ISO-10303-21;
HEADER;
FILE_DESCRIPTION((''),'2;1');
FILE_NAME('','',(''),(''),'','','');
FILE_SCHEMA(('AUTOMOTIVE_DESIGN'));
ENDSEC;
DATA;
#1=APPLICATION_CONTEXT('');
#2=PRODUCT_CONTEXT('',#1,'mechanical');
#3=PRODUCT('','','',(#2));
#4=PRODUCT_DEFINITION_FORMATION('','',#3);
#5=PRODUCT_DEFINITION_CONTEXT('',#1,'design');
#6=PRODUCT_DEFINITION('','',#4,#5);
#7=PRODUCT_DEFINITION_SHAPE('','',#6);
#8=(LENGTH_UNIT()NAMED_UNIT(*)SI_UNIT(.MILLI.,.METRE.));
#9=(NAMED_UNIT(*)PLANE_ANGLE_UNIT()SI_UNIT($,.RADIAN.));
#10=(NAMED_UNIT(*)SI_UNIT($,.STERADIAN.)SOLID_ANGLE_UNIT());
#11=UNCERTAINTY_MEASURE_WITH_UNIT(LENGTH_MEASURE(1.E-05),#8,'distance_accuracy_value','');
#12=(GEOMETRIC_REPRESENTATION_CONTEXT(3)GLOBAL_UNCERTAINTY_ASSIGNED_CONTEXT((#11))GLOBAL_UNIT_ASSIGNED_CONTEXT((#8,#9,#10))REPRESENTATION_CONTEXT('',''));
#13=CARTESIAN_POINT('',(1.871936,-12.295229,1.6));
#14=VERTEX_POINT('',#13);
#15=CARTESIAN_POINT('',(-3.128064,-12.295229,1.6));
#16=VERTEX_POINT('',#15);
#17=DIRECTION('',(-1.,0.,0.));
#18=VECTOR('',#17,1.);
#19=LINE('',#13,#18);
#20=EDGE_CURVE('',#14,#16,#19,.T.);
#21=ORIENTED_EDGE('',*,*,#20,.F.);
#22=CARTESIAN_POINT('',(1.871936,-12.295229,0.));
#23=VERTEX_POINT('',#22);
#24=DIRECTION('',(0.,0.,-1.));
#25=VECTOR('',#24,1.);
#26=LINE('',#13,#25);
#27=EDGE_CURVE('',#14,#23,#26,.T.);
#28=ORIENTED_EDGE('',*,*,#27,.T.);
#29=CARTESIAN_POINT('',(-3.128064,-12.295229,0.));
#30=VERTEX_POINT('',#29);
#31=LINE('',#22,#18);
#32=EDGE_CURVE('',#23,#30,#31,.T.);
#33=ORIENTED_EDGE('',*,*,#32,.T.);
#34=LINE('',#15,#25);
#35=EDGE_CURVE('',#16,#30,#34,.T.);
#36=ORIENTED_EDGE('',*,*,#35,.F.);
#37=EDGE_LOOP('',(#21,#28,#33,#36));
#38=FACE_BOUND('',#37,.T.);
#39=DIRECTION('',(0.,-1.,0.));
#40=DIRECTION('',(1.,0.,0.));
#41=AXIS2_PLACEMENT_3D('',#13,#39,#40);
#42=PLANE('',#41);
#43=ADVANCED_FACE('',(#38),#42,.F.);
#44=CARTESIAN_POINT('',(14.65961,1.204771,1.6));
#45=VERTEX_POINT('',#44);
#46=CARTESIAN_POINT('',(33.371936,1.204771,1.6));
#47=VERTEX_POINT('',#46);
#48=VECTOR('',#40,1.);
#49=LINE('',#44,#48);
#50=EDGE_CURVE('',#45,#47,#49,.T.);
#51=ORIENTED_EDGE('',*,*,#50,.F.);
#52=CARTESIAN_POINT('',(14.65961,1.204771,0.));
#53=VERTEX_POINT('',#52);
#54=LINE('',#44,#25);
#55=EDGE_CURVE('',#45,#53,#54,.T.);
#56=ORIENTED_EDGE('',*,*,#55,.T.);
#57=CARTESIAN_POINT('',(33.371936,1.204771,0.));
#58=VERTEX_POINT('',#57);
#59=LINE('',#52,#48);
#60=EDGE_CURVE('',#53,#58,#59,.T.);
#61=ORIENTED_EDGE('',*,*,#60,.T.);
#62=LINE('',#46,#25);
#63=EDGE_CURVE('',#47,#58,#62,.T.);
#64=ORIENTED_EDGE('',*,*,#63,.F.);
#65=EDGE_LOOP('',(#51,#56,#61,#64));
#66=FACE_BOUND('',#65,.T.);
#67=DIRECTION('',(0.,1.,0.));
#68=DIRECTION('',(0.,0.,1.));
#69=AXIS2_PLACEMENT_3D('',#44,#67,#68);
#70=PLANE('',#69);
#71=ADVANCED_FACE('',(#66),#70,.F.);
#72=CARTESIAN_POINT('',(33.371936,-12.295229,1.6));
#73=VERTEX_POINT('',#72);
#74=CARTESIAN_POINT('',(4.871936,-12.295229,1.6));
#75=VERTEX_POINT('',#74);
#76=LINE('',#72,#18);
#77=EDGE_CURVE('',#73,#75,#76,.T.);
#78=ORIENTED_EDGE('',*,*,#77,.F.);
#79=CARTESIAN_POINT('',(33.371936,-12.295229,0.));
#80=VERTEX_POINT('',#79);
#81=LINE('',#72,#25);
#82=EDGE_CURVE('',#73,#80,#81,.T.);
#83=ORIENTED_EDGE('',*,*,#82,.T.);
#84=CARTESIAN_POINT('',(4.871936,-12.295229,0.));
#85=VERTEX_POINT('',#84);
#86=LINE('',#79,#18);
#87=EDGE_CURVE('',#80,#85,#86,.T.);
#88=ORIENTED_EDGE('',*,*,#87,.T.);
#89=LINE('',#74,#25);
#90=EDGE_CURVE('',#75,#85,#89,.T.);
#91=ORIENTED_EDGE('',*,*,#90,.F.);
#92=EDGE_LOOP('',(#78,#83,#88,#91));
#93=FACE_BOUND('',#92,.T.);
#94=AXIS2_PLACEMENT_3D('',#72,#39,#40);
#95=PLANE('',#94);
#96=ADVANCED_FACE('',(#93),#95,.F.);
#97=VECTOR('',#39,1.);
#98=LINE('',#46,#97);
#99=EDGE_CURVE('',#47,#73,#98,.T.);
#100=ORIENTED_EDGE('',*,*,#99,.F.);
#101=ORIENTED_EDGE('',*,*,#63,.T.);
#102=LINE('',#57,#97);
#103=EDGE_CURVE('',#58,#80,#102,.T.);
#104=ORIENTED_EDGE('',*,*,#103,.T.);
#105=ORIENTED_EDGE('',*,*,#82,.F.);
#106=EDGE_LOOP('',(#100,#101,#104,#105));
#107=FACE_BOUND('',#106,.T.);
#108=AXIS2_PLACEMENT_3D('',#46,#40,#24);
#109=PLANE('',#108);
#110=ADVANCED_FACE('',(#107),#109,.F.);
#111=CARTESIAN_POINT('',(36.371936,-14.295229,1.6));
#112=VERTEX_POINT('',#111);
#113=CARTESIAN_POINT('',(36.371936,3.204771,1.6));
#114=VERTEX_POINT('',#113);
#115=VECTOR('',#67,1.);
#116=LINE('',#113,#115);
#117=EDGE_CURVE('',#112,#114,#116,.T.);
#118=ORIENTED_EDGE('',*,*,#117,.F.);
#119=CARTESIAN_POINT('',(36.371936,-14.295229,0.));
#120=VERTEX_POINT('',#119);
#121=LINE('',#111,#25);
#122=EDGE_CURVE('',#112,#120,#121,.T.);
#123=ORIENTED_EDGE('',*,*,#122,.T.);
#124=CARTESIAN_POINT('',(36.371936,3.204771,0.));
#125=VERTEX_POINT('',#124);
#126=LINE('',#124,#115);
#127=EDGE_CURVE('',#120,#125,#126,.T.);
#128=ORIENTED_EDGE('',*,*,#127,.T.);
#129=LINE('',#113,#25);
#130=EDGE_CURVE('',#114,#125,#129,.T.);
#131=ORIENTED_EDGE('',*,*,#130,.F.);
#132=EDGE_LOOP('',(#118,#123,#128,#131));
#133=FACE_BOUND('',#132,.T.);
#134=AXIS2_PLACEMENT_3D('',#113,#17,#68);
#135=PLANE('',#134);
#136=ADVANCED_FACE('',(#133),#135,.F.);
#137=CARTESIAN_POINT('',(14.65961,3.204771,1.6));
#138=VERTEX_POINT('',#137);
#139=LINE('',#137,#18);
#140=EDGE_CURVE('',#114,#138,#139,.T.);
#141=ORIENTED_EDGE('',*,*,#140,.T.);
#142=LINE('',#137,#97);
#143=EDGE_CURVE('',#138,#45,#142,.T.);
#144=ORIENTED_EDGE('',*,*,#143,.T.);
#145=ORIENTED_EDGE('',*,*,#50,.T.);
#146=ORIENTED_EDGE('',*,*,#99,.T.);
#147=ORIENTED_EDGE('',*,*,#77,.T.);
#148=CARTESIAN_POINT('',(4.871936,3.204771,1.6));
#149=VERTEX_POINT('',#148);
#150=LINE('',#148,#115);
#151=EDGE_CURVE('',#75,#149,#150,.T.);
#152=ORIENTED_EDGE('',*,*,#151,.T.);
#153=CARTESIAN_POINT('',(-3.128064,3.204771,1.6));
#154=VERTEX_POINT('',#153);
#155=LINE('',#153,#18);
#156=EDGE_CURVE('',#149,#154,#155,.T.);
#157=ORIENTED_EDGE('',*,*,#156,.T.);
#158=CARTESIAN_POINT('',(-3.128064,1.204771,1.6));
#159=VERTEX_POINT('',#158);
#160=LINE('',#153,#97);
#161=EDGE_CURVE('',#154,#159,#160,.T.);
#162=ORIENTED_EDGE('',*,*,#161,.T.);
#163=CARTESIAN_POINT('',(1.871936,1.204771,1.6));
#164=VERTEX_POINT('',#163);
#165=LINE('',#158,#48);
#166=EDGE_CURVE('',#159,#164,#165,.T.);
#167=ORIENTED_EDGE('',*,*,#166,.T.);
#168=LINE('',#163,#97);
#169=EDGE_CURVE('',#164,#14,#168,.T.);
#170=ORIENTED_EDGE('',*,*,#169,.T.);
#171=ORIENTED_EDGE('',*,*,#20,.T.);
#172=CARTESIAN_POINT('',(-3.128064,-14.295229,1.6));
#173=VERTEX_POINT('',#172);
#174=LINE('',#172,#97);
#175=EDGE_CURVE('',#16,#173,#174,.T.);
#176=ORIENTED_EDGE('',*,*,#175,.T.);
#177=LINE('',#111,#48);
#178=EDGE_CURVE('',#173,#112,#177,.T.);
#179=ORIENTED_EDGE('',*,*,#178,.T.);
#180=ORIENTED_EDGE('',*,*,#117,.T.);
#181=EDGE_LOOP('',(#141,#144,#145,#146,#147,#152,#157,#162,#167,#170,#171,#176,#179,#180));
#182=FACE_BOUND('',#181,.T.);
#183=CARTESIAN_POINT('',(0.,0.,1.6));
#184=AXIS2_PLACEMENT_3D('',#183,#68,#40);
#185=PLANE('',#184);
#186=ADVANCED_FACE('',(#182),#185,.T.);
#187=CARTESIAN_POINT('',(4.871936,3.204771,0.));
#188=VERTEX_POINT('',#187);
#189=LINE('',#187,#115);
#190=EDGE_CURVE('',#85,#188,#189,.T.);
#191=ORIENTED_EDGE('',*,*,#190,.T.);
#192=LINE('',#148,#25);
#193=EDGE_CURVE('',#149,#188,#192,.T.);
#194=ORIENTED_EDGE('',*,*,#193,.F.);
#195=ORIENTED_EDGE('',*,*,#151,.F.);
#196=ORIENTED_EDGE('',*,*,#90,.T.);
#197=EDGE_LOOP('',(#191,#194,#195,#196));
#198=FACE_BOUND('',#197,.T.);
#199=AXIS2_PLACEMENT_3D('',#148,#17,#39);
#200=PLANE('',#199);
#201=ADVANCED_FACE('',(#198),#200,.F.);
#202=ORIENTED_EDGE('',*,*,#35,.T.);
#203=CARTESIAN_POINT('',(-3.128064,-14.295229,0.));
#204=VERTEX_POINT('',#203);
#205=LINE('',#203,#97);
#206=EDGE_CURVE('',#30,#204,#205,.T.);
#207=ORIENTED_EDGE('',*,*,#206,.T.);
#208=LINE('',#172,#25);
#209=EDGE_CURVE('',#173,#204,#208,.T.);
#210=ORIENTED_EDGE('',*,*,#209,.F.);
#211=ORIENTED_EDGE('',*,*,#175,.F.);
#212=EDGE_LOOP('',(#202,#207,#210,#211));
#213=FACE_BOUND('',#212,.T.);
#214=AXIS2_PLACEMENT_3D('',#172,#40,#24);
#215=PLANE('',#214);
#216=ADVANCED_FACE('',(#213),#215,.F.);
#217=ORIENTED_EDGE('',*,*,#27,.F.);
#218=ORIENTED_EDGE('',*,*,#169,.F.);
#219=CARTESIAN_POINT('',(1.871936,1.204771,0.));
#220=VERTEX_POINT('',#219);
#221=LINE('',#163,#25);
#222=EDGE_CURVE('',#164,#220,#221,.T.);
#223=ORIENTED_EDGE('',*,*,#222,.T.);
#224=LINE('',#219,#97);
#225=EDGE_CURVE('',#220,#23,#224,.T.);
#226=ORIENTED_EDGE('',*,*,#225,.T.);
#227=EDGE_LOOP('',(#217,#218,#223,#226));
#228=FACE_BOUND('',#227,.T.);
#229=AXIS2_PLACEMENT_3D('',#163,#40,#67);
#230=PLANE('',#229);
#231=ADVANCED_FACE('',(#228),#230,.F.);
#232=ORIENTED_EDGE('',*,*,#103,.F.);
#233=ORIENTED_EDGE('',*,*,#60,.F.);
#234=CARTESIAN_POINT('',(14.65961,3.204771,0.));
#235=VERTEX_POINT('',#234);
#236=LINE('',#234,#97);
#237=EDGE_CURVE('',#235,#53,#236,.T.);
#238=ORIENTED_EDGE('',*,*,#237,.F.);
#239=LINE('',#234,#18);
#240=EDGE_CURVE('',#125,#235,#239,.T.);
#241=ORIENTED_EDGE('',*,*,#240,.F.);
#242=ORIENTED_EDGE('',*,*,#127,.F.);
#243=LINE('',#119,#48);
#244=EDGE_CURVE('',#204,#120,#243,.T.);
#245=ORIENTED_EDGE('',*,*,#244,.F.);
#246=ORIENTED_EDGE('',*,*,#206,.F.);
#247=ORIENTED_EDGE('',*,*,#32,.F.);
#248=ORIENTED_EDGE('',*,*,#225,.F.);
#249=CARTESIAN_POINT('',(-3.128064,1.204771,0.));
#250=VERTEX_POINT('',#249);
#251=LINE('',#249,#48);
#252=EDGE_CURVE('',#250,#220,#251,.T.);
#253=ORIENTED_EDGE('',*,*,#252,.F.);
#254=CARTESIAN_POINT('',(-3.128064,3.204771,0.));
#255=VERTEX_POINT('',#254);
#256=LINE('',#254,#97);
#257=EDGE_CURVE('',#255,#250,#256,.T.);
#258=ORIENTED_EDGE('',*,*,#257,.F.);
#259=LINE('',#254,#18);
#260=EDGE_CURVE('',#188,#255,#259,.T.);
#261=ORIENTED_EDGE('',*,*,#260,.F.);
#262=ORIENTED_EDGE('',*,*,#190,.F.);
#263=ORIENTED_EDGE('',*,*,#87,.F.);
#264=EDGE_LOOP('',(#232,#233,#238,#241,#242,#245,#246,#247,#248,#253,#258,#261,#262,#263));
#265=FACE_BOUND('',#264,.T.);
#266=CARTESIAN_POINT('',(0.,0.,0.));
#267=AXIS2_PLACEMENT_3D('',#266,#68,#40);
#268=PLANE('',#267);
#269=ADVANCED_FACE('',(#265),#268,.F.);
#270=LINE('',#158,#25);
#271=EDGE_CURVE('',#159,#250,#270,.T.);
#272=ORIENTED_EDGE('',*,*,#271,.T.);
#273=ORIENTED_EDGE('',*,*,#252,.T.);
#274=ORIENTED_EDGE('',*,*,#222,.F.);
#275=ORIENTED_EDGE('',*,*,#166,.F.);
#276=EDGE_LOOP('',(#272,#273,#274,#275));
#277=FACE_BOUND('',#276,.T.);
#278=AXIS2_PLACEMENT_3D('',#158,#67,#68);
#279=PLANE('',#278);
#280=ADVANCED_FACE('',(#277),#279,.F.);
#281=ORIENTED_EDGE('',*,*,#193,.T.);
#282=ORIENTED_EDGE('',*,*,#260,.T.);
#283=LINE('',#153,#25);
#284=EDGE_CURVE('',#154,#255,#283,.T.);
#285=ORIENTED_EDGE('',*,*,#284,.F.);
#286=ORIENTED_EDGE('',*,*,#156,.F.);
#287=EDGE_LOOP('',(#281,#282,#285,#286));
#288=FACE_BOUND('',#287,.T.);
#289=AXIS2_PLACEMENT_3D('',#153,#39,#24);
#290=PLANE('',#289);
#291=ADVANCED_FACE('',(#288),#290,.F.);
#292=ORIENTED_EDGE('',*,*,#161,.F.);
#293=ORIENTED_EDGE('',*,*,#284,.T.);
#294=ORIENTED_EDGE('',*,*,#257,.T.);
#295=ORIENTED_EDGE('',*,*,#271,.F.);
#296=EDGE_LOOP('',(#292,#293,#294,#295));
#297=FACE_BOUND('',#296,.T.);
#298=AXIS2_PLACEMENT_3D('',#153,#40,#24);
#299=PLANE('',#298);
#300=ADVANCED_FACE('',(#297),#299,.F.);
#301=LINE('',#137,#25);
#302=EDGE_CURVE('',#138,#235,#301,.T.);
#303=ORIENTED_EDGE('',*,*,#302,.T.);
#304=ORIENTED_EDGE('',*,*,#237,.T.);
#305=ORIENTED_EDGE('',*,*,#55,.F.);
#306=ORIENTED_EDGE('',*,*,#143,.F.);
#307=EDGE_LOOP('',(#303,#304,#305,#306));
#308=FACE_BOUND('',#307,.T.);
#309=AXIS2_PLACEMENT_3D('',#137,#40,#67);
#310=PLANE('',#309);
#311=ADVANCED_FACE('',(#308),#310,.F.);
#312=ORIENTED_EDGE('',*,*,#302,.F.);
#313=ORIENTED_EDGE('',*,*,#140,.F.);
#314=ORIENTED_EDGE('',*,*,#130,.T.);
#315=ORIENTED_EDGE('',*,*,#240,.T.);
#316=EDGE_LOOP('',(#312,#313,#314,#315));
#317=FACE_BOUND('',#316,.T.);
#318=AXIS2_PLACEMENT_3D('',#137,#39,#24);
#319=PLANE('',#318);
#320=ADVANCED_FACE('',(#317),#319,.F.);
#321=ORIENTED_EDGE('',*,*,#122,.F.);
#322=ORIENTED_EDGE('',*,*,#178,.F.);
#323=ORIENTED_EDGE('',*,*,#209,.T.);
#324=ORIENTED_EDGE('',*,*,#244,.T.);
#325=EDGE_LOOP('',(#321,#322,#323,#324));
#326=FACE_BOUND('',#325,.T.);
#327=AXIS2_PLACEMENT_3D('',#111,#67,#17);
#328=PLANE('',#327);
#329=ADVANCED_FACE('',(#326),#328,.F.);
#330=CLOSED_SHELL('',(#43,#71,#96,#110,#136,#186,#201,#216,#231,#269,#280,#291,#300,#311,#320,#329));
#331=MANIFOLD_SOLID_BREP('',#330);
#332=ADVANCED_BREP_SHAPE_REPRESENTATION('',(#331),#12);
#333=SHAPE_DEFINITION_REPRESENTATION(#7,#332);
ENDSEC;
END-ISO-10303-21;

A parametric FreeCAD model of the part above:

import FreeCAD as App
import Part
import Sketcher
from FreeCAD import Vector
Q = App.Units.Quantity


def add_polygon(sketch, points):
    """Adds a closed chain of lines whose ends are joined by coincident constraints."""
    first, n = sketch.GeometryCount, len(points)
    for a, b in zip(points, points[1:] + points[:1]):
        sketch.addGeometry(Part.LineSegment(App.Vector(*a, 0), App.Vector(*b, 0)), False)
    for i in range(n):
        sketch.addConstraint(Sketcher.Constraint("Coincident", first + i, 2, first + (i + 1) % n, 1))

doc = App.newDocument("Part")
body = doc.addObject("PartDesign::Body", "Body")

sketch1 = body.newObject("Sketcher::SketchObject", "Sketch")
sketch1.AttachmentSupport = (doc.getObject("XY_Plane"), [""])
sketch1.MapMode = "FlatFace"
add_polygon(sketch1, [(36.371936, 3.204771), (14.65961, 3.204771), (14.65961, 1.204771), (33.371936, 1.204771), (33.371936, -12.295229), (4.871936, -12.295229), (4.871936, 3.204771), (-3.128064, 3.204771), (-3.128064, 1.204771), (1.871936, 1.204771), (1.871936, -12.295229), (-3.128064, -12.295229), (-3.128064, -14.295229), (36.371936, -14.295229)])
sketch1.addConstraint([
    Sketcher.Constraint("Horizontal", 0),
    Sketcher.Constraint("Vertical", 1),
    Sketcher.Constraint("Horizontal", 2),
    Sketcher.Constraint("Vertical", 3),
    Sketcher.Constraint("Horizontal", 4),
    Sketcher.Constraint("Vertical", 5),
    Sketcher.Constraint("Horizontal", 6),
    Sketcher.Constraint("Vertical", 7),
    Sketcher.Constraint("Horizontal", 8),
    Sketcher.Constraint("Vertical", 9),
    Sketcher.Constraint("Horizontal", 10),
    Sketcher.Constraint("Vertical", 11),
    Sketcher.Constraint("Horizontal", 12),
    Sketcher.Constraint("Vertical", 13),
    Sketcher.Constraint("Horizontal", 0, 2, 5, 2),
    Sketcher.Constraint("Horizontal", 2, 2, 7, 2),
    Sketcher.Constraint("Horizontal", 4, 2, 9, 2),
    Sketcher.Constraint("Vertical", 7, 2, 10, 2),
    Sketcher.Constraint("Equal", 7, 11),
    Sketcher.Constraint("DistanceX", 6, 2, 6, 1, Q("8 mm")),
    Sketcher.Constraint("DistanceX", 8, 1, 8, 2, Q("5 mm")),
    Sketcher.Constraint("DistanceY", 1, 2, 1, 1, Q("2 mm")),
    Sketcher.Constraint("DistanceX", 4, 2, 4, 1, Q("28.5 mm")),
    Sketcher.Constraint("DistanceX", 12, 1, 12, 2, Q("39.5 mm")),
    Sketcher.Constraint("DistanceY", 3, 2, 3, 1, Q("13.5 mm")),
    Sketcher.Constraint("DistanceX", 0, 2, 0, 1, Q("21.712326 mm")),
    Sketcher.Constraint("DistanceX", -1, 1, 0, 2, Q("14.65961 mm")),
    Sketcher.Constraint("DistanceY", -1, 1, 0, 2, Q("3.204771 mm")),
])
pad1 = body.newObject("PartDesign::Pad", "Pad")
pad1.Profile = sketch1
pad1.Length = 1.6

doc.recompute()
